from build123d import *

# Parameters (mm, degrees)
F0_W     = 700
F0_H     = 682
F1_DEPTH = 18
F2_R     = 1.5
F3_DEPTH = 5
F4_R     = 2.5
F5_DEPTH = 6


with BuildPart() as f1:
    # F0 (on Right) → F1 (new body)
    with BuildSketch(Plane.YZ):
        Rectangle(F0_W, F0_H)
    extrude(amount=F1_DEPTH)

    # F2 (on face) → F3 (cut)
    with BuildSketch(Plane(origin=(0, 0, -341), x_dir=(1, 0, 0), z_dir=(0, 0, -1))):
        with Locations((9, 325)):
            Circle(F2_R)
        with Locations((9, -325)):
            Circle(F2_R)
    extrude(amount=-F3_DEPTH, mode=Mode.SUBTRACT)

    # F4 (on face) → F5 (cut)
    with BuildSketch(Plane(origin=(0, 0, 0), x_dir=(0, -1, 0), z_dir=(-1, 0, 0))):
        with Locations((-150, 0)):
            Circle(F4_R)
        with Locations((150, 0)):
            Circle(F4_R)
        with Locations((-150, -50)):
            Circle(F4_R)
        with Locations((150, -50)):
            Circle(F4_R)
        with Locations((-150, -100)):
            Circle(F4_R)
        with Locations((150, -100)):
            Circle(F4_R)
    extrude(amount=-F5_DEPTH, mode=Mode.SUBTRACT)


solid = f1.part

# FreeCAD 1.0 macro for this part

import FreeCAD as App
import Part
import Sketcher

V = App.Vector
Q = App.Units.Quantity


def add_polygon(sketch, points):
    """Adds a closed chain of lines whose ends are joined by coincident constraints."""
    first, n = sketch.GeometryCount, len(points)
    for a, b in zip(points, points[1:] + points[:1]):
        sketch.addGeometry(Part.LineSegment(App.Vector(*a, 0), App.Vector(*b, 0)), False)
    for i in range(n):
        sketch.addConstraint(Sketcher.Constraint("Coincident", first + i, 2, first + (i + 1) % n, 1))

doc = App.newDocument("Part")
body = doc.addObject("PartDesign::Body", "Body")

sketch1 = body.newObject("Sketcher::SketchObject", "Sketch")
sketch1.AttachmentSupport = (doc.getObject("YZ_Plane"), [""])
sketch1.MapMode = "FlatFace"
add_polygon(sketch1, [(-350, 341), (-350, -341), (350, -341), (350, 341)])
sketch1.addConstraint(Sketcher.Constraint("Vertical", 0))
sketch1.addConstraint(Sketcher.Constraint("Horizontal", 1))
sketch1.addConstraint(Sketcher.Constraint("Vertical", 2))
sketch1.addConstraint(Sketcher.Constraint("Horizontal", 3))
sketch1.addConstraint(Sketcher.Constraint("Symmetric", 0, 2, 2, 2, -1, 1))
sketch1.addConstraint(Sketcher.Constraint("DistanceX", 1, 1, 1, 2, Q("700 mm")))
sketch1.addConstraint(Sketcher.Constraint("DistanceY", 0, 2, 0, 1, Q("682 mm")))
pad1 = body.newObject("PartDesign::Pad", "Pad")
pad1.Profile = sketch1
pad1.Length = 18

sketch2 = body.newObject("Sketcher::SketchObject", "Sketch001")
sketch2.AttachmentSupport = (doc.getObject("XY_Plane"), [""])
sketch2.MapMode = "FlatFace"
sketch2.AttachmentOffset = App.Placement(V(0, 0, -341), App.Rotation())
sketch2.addGeometry(Part.Circle(V(9, -325, 0), V(0, 0, 1), 1.5), False)
sketch2.addGeometry(Part.Circle(V(9, 325, 0), V(0, 0, 1), 1.5), False)
sketch2.addConstraint(Sketcher.Constraint("Equal", 0, 1))
sketch2.addConstraint(Sketcher.Constraint("Symmetric", 0, 3, 1, 3, -1))
sketch2.addConstraint(Sketcher.Constraint("Diameter", 0, Q("3 mm")))
sketch2.addConstraint(Sketcher.Constraint("DistanceX", -1, 1, 0, 3, Q("9 mm")))
sketch2.addConstraint(Sketcher.Constraint("DistanceY", 0, 3, -1, 1, Q("325 mm")))
pocket1 = body.newObject("PartDesign::Pocket", "Pocket")
pocket1.Profile = sketch2
pocket1.Length = 5
pocket1.Reversed = True

sketch3 = body.newObject("Sketcher::SketchObject", "Sketch002")
sketch3.AttachmentSupport = (doc.getObject("YZ_Plane"), [""])
sketch3.MapMode = "FlatFace"
sketch3.addGeometry(Part.Circle(V(150, 0, 0), V(0, 0, 1), 2.5), False)
sketch3.addGeometry(Part.Circle(V(-150, 0, 0), V(0, 0, 1), 2.5), False)
sketch3.addGeometry(Part.Circle(V(150, -50, 0), V(0, 0, 1), 2.5), False)
sketch3.addGeometry(Part.Circle(V(-150, -50, 0), V(0, 0, 1), 2.5), False)
sketch3.addGeometry(Part.Circle(V(150, -100, 0), V(0, 0, 1), 2.5), False)
sketch3.addGeometry(Part.Circle(V(-150, -100, 0), V(0, 0, 1), 2.5), False)
sketch3.addConstraint(Sketcher.Constraint("Equal", 0, 1))
sketch3.addConstraint(Sketcher.Constraint("Equal", 1, 2))
sketch3.addConstraint(Sketcher.Constraint("Equal", 2, 3))
sketch3.addConstraint(Sketcher.Constraint("Equal", 3, 4))
sketch3.addConstraint(Sketcher.Constraint("Equal", 4, 5))
sketch3.addConstraint(Sketcher.Constraint("Symmetric", 0, 3, 1, 3, -1, 1))
sketch3.addConstraint(Sketcher.Constraint("Symmetric", 2, 3, 3, 3, -2))
sketch3.addConstraint(Sketcher.Constraint("Symmetric", 4, 3, 5, 3, -2))
sketch3.addConstraint(Sketcher.Constraint("PointOnObject", 0, 3, -1))
sketch3.addConstraint(Sketcher.Constraint("Vertical", 0, 3, 2, 3))
sketch3.addConstraint(Sketcher.Constraint("Vertical", 2, 3, 4, 3))
sketch3.addConstraint(Sketcher.Constraint("Diameter", 0, Q("5 mm")))
sketch3.addConstraint(Sketcher.Constraint("DistanceX", -1, 1, 0, 3, Q("150 mm")))
sketch3.addConstraint(Sketcher.Constraint("DistanceY", 2, 3, -1, 1, Q("50 mm")))
sketch3.addConstraint(Sketcher.Constraint("DistanceY", 4, 3, -1, 1, Q("100 mm")))
pocket2 = body.newObject("PartDesign::Pocket", "Pocket001")
pocket2.Profile = sketch3
pocket2.Length = 6
pocket2.Reversed = True

doc.recompute()
